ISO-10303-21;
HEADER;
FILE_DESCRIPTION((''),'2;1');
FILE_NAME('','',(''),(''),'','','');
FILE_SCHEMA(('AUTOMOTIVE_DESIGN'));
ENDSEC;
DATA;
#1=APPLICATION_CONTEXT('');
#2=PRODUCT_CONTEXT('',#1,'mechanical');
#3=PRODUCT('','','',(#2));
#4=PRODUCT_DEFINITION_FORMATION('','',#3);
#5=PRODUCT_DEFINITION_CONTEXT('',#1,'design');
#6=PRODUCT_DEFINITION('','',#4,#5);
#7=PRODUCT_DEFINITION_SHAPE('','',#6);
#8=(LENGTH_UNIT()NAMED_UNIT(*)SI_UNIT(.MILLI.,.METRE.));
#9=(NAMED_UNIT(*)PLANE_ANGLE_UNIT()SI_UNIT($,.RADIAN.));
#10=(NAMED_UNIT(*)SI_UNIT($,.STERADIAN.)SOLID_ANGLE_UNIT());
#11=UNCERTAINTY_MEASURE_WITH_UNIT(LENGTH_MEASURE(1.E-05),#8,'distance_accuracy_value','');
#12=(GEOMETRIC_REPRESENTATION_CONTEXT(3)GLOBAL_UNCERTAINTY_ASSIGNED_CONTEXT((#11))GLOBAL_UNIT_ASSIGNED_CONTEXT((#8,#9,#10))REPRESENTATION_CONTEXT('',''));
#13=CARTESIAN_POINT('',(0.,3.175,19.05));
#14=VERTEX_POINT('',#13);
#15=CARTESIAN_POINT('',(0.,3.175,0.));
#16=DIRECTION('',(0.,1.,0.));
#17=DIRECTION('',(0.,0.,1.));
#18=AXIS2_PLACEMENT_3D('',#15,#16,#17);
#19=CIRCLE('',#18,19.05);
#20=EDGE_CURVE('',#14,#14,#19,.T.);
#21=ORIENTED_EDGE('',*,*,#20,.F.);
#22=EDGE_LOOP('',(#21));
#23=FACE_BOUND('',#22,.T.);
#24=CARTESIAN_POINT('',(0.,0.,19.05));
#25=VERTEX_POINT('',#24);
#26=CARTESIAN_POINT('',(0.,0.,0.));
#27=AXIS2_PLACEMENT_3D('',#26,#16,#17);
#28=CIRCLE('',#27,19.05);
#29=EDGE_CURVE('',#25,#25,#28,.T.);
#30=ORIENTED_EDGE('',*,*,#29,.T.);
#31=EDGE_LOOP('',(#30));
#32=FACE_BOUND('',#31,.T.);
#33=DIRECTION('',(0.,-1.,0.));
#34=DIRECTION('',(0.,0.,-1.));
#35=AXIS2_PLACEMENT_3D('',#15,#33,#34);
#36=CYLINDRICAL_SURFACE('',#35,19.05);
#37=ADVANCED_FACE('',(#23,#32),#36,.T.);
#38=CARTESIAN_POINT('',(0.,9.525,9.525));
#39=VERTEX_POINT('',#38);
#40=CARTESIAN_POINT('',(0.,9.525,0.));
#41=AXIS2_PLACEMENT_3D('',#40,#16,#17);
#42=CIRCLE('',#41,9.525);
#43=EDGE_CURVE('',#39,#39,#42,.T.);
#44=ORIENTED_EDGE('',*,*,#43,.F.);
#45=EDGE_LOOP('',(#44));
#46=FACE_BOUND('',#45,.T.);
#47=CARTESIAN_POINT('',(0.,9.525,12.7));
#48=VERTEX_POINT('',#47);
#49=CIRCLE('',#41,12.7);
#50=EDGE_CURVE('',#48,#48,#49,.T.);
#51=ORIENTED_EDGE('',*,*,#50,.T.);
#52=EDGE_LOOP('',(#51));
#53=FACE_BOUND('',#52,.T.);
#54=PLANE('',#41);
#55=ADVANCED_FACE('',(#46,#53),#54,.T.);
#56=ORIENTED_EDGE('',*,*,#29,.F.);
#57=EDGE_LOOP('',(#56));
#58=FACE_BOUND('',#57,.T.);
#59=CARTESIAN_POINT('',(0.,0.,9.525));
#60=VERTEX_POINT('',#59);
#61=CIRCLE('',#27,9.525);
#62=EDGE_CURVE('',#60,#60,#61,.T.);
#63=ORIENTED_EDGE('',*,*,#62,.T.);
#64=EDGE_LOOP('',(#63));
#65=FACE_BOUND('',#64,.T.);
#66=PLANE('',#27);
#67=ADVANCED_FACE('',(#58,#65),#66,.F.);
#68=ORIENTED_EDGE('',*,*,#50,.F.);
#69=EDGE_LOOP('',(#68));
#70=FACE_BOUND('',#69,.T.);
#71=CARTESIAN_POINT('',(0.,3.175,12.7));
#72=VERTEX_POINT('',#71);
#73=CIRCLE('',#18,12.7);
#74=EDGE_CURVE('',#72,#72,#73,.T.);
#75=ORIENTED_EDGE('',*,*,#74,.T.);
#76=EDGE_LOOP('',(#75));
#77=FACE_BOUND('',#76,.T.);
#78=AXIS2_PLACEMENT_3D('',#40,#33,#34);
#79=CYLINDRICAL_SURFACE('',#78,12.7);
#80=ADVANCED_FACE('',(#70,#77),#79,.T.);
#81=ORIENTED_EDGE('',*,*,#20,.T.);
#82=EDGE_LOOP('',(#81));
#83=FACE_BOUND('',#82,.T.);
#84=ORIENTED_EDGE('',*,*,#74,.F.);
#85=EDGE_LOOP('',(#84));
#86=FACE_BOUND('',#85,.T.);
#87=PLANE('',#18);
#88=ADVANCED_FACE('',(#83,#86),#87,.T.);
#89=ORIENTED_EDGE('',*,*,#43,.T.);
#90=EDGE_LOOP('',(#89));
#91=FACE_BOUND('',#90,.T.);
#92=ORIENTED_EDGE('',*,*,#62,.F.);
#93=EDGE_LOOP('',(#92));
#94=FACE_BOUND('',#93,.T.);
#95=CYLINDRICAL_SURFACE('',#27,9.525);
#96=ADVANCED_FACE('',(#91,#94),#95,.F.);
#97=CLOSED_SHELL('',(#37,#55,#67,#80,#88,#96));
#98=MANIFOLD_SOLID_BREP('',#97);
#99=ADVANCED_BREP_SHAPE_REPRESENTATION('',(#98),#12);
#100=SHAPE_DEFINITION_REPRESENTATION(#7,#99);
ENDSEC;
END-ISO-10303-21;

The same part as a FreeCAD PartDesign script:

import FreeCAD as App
import Part
import Sketcher
from FreeCAD import Vector
Q = App.Units.Quantity

doc = App.newDocument("Part")
body = doc.addObject("PartDesign::Body", "Body")

sketch1 = body.newObject("Sketcher::SketchObject", "Sketch")
sketch1.AttachmentSupport = (doc.getObject("XZ_Plane"), [""])
sketch1.MapMode = "FlatFace"
sketch1.addGeometry(Part.Circle(Vector(0, 0, 0), Vector(0, 0, 1), 19), False)
sketch1.addConstraint([
    Sketcher.Constraint("Coincident", 0, 3, -1, 1),
    Sketcher.Constraint("Diameter", 0, Q("1.5 in")),
])
pad1 = body.newObject("PartDesign::Pad", "Pad")
pad1.Profile = sketch1
pad1.Length = Q("0.125 in")
pad1.Reversed = True

sketch2 = body.newObject("Sketcher::SketchObject", "Sketch001")
sketch2.AttachmentSupport = (doc.getObject("XZ_Plane"), [""])
sketch2.MapMode = "FlatFace"
sketch2.AttachmentOffset = App.Placement(Vector(0, 0, -0.125 * 25.4), App.Rotation())
sketch2.addGeometry(Part.Circle(Vector(0, 0, 0), Vector(0, 0, 1), 13), False)
sketch2.addConstraint([
    Sketcher.Constraint("Coincident", 0, 3, -1, 1),
    Sketcher.Constraint("Diameter", 0, Q("1 in")),
])
pad2 = body.newObject("PartDesign::Pad", "Pad001")
pad2.Profile = sketch2
pad2.Length = Q("0.25 in")
pad2.Reversed = True

sketch3 = body.newObject("Sketcher::SketchObject", "Sketch002")
sketch3.AttachmentSupport = (doc.getObject("XZ_Plane"), [""])
sketch3.MapMode = "FlatFace"
sketch3.AttachmentOffset = App.Placement(Vector(0, 0, -0.375 * 25.4), App.Rotation())
sketch3.addGeometry(Part.Circle(Vector(0, 0, 0), Vector(0, 0, 1), 10), False)
sketch3.addConstraint([
    Sketcher.Constraint("Coincident", 0, 3, -1, 1),
    Sketcher.Constraint("Diameter", 0, Q("0.75 in")),
])
pocket1 = body.newObject("PartDesign::Pocket", "Pocket")
pocket1.Profile = sketch3
pocket1.Type = "ThroughAll"
pocket1.Reversed = True

doc.recompute()
